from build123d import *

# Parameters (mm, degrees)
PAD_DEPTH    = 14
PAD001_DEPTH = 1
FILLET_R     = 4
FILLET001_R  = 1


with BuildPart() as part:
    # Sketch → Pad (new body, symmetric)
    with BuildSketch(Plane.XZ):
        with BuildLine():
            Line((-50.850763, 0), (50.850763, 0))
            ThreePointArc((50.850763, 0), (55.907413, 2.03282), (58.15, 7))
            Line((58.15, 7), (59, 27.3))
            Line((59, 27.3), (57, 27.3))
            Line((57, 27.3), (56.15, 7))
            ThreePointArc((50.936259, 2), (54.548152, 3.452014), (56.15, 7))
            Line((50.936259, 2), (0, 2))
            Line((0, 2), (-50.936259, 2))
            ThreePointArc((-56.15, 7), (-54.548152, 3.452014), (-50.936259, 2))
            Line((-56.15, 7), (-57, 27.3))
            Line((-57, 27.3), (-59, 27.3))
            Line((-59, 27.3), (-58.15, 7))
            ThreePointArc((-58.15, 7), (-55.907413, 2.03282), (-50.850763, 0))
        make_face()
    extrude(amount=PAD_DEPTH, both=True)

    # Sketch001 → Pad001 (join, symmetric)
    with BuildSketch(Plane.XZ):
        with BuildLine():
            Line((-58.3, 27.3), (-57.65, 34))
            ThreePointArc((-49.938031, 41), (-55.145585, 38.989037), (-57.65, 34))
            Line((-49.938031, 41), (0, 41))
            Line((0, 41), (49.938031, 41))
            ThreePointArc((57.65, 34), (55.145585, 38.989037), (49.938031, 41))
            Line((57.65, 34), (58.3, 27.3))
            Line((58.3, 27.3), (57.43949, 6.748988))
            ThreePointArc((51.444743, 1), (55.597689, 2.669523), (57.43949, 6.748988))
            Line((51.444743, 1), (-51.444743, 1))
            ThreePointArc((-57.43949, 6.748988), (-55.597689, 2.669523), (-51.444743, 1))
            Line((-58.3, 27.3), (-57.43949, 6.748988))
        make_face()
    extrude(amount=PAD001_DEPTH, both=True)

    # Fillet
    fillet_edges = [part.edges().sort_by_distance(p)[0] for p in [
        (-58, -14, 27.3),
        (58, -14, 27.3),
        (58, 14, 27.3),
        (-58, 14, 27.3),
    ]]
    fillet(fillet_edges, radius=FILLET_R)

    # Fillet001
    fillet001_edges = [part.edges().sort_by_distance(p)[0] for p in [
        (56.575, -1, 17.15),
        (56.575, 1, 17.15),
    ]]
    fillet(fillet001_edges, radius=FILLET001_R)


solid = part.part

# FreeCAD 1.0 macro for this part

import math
import FreeCAD as App
import Part
import Sketcher
Q = App.Units.Quantity


def edges_at(feature, points):
    """Names of the edges that pass closest to the given points."""
    edges = feature.Shape.Edges
    near = lambda p: min(range(len(edges)), key=lambda i: edges[i].distToShape(Part.Vertex(*p))[0])
    return sorted({f"Edge{near(p) + 1}" for p in points})

doc = App.newDocument("Part")
body = doc.addObject("PartDesign::Body", "Body")

# Sketch on XZ plane
sketch1 = body.newObject("Sketcher::SketchObject", "Sketch")
sketch1.AttachmentSupport = (doc.getObject("XZ_Plane"), [""])
sketch1.MapMode = "FlatFace"
sketch1.addGeometry(Part.LineSegment(App.Vector(-50.9, 0, 0), App.Vector(50.9, 0, 0)), False)
sketch1.addGeometry(Part.ArcOfCircle(Part.Circle(App.Vector(50.9, 7.3, 0), App.Vector(0, 0, 1), 7.3), math.radians(-90), math.radians(-2)), False)
sketch1.addGeometry(Part.LineSegment(App.Vector(58.1, 7, 0), App.Vector(59, 27.3, 0)), False)
sketch1.addGeometry(Part.LineSegment(App.Vector(59, 27.3, 0), App.Vector(57, 27.3, 0)), False)
sketch1.addGeometry(Part.LineSegment(App.Vector(57, 27.3, 0), App.Vector(56.1, 7, 0)), False)
sketch1.addGeometry(Part.ArcOfCircle(Part.Circle(App.Vector(50.9, 7.2, 0), App.Vector(0, 0, 1), 5.2), math.radians(-90), math.radians(-2)), False)
sketch1.addGeometry(Part.LineSegment(App.Vector(50.9, 2, 0), App.Vector(-50.9, 2, 0)), False)
sketch1.addGeometry(Part.ArcOfCircle(Part.Circle(App.Vector(-50.9, 7.2, 0), App.Vector(0, 0, 1), 5.2), math.radians(-178), math.radians(-90)), False)
sketch1.addGeometry(Part.LineSegment(App.Vector(-56.1, 7, 0), App.Vector(-57, 27.3, 0)), False)
sketch1.addGeometry(Part.LineSegment(App.Vector(-57, 27.3, 0), App.Vector(-59, 27.3, 0)), False)
sketch1.addGeometry(Part.LineSegment(App.Vector(-59, 27.3, 0), App.Vector(-58.1, 7, 0)), False)
sketch1.addGeometry(Part.ArcOfCircle(Part.Circle(App.Vector(-50.9, 7.3, 0), App.Vector(0, 0, 1), 7.3), math.radians(-178), math.radians(-90)), False)
sketch1.addConstraint(Sketcher.Constraint("Tangent", 0, 2, 1, 1))
sketch1.addConstraint(Sketcher.Constraint("Tangent", 1, 2, 2, 1))
sketch1.addConstraint(Sketcher.Constraint("Coincident", 2, 2, 3, 1))
sketch1.addConstraint(Sketcher.Constraint("Coincident", 3, 2, 4, 1))
sketch1.addConstraint(Sketcher.Constraint("Tangent", 4, 2, 5, 2))
sketch1.addConstraint(Sketcher.Constraint("Tangent", 5, 1, 6, 1))
sketch1.addConstraint(Sketcher.Constraint("Tangent", 6, 2, 7, 2))
sketch1.addConstraint(Sketcher.Constraint("Tangent", 7, 1, 8, 1))
sketch1.addConstraint(Sketcher.Constraint("Coincident", 8, 2, 9, 1))
sketch1.addConstraint(Sketcher.Constraint("Coincident", 9, 2, 10, 1))
sketch1.addConstraint(Sketcher.Constraint("Tangent", 10, 2, 11, 1))
sketch1.addConstraint(Sketcher.Constraint("Tangent", 11, 2, 0, 1))
sketch1.addConstraint(Sketcher.Constraint("Horizontal", 0))
sketch1.addConstraint(Sketcher.Constraint("Horizontal", 3))
sketch1.addConstraint(Sketcher.Constraint("Horizontal", 6))
sketch1.addConstraint(Sketcher.Constraint("Horizontal", 9))
sketch1.addConstraint(Sketcher.Constraint("Equal", 5, 7))
sketch1.addConstraint(Sketcher.Constraint("Equal", 1, 11))
sketch1.addConstraint(Sketcher.Constraint("Symmetric", 0, 2, 11, 2, -1, 1))
sketch1.addConstraint(Sketcher.Constraint("Symmetric", 4, 2, 7, 1, -2))
sketch1.addConstraint(Sketcher.Constraint("Symmetric", 2, 2, 9, 2, -2))
sketch1.addConstraint(Sketcher.Constraint("Parallel", 2, 4))
sketch1.addConstraint(Sketcher.Constraint("Horizontal", 1, 2, 4, 2))
sketch1.addConstraint(Sketcher.Constraint("DistanceX", 3, 2, 3, 1, Q("2 mm")))
sketch1.addConstraint(Sketcher.Constraint("DistanceY", -1, 1, 1, 2, Q("7 mm")))
sketch1.addConstraint(Sketcher.Constraint("DistanceX", -1, 1, 2, 2, Q("59 mm")))
sketch1.addConstraint(Sketcher.Constraint("DistanceY", -1, 1, 5, 1, Q("2 mm")))
sketch1.addConstraint(Sketcher.Constraint("DistanceY", -1, 1, 2, 2, Q("27.3 mm")))
sketch1.addConstraint(Sketcher.Constraint("DistanceX", -1, 1, 1, 2, Q("58.15 mm")))
pad1 = body.newObject("PartDesign::Pad", "Pad")
pad1.Profile = sketch1
pad1.Length = 28
pad1.Midplane = True

# Sketch on XZ plane
sketch2 = body.newObject("Sketcher::SketchObject", "Sketch001")
sketch2.AttachmentSupport = (doc.getObject("XZ_Plane"), [""])
sketch2.MapMode = "FlatFace"
sketch2.addGeometry(Part.LineSegment(App.Vector(-58, 34, 0), App.Vector(-58, 27, 0)), False)
sketch2.addGeometry(Part.LineSegment(App.Vector(-58, 27, 0), App.Vector(-57, 7, 0)), False)
sketch2.addGeometry(Part.ArcOfCircle(Part.Circle(App.Vector(-51, 7, 0), App.Vector(0, 0, 1), 6), math.radians(-178), math.radians(-90)), False)
sketch2.addGeometry(Part.LineSegment(App.Vector(-51, 1, 0), App.Vector(51, 1, 0)), False)
sketch2.addGeometry(Part.ArcOfCircle(Part.Circle(App.Vector(51, 7, 0), App.Vector(0, 0, 1), 6), math.radians(-90), math.radians(-2)), False)
sketch2.addGeometry(Part.LineSegment(App.Vector(57, 7, 0), App.Vector(58, 27, 0)), False)
sketch2.addGeometry(Part.LineSegment(App.Vector(58, 27, 0), App.Vector(58, 34, 0)), False)
sketch2.addGeometry(Part.ArcOfCircle(Part.Circle(App.Vector(50, 33, 0), App.Vector(0, 0, 1), 8), math.radians(6), math.radians(90)), False)
sketch2.addGeometry(Part.LineSegment(App.Vector(50, 41, 0), App.Vector(-50, 41, 0)), False)
sketch2.addGeometry(Part.ArcOfCircle(Part.Circle(App.Vector(-50, 33, 0), App.Vector(0, 0, 1), 8), math.radians(90), math.radians(174)), False)
sketch2.addConstraint(Sketcher.Constraint("Coincident", 0, 2, 1, 1))
sketch2.addConstraint(Sketcher.Constraint("Tangent", 1, 2, 2, 1))
sketch2.addConstraint(Sketcher.Constraint("Tangent", 2, 2, 3, 1))
sketch2.addConstraint(Sketcher.Constraint("Tangent", 3, 2, 4, 1))
sketch2.addConstraint(Sketcher.Constraint("Tangent", 4, 2, 5, 1))
sketch2.addConstraint(Sketcher.Constraint("Coincident", 5, 2, 6, 1))
sketch2.addConstraint(Sketcher.Constraint("Tangent", 6, 2, 7, 1))
sketch2.addConstraint(Sketcher.Constraint("Tangent", 7, 2, 8, 1))
sketch2.addConstraint(Sketcher.Constraint("Tangent", 8, 2, 9, 1))
sketch2.addConstraint(Sketcher.Constraint("Tangent", 9, 2, 0, 1))
sketch2.addConstraint(Sketcher.Constraint("Horizontal", 3))
sketch2.addConstraint(Sketcher.Constraint("Horizontal", 8))
sketch2.addConstraint(Sketcher.Constraint("Equal", 2, 4))
sketch2.addConstraint(Sketcher.Constraint("Equal", 7, 9))
sketch2.addConstraint(Sketcher.Constraint("Symmetric", 1, 2, 4, 2, -2))
sketch2.addConstraint(Sketcher.Constraint("Symmetric", 6, 2, 9, 2, -2))
sketch2.addConstraint(Sketcher.Constraint("Radius", 2, Q("6.000002 mm")))
sketch2.addConstraint(Sketcher.Constraint("DistanceY", -1, 1, 2, 3, Q("7.000002 mm")))
sketch2.addConstraint(Sketcher.Constraint("DistanceY", -1, 1, 6, 2, Q("34 mm")))
sketch2.addConstraint(Sketcher.Constraint("DistanceY", -1, 1, 7, 2, Q("41 mm")))
sketch2.addConstraint(Sketcher.Constraint("DistanceX", 0, 2, -1, 1, Q("58.3 mm")))
sketch2.addConstraint(Sketcher.Constraint("DistanceY", -1, 1, 0, 2, Q("27.3 mm")))
sketch2.addConstraint(Sketcher.Constraint("DistanceX", -1, 1, 6, 2, Q("57.65 mm")))
sketch2.addConstraint(Sketcher.Constraint("Distance", 1, Q("20.56902 mm")))
pad2 = body.newObject("PartDesign::Pad", "Pad001")
pad2.Profile = sketch2
pad2.Length = 2
pad2.Midplane = True
doc.recompute()

fillet = body.newObject("PartDesign::Fillet", "Fillet")
fillet.Base = (pad2, edges_at(pad2, [
    (-58, -14, 27.3),
    (58, -14, 27.3),
    (58, 14, 27.3),
    (-58, 14, 27.3),
]))
fillet.Radius = 4
doc.recompute()

fillet2 = body.newObject("PartDesign::Fillet", "Fillet001")
fillet2.Base = (fillet, edges_at(fillet, [(56.575, -1, 17.15), (56.575, 1, 17.15)]))
fillet2.Radius = 1

doc.recompute()
